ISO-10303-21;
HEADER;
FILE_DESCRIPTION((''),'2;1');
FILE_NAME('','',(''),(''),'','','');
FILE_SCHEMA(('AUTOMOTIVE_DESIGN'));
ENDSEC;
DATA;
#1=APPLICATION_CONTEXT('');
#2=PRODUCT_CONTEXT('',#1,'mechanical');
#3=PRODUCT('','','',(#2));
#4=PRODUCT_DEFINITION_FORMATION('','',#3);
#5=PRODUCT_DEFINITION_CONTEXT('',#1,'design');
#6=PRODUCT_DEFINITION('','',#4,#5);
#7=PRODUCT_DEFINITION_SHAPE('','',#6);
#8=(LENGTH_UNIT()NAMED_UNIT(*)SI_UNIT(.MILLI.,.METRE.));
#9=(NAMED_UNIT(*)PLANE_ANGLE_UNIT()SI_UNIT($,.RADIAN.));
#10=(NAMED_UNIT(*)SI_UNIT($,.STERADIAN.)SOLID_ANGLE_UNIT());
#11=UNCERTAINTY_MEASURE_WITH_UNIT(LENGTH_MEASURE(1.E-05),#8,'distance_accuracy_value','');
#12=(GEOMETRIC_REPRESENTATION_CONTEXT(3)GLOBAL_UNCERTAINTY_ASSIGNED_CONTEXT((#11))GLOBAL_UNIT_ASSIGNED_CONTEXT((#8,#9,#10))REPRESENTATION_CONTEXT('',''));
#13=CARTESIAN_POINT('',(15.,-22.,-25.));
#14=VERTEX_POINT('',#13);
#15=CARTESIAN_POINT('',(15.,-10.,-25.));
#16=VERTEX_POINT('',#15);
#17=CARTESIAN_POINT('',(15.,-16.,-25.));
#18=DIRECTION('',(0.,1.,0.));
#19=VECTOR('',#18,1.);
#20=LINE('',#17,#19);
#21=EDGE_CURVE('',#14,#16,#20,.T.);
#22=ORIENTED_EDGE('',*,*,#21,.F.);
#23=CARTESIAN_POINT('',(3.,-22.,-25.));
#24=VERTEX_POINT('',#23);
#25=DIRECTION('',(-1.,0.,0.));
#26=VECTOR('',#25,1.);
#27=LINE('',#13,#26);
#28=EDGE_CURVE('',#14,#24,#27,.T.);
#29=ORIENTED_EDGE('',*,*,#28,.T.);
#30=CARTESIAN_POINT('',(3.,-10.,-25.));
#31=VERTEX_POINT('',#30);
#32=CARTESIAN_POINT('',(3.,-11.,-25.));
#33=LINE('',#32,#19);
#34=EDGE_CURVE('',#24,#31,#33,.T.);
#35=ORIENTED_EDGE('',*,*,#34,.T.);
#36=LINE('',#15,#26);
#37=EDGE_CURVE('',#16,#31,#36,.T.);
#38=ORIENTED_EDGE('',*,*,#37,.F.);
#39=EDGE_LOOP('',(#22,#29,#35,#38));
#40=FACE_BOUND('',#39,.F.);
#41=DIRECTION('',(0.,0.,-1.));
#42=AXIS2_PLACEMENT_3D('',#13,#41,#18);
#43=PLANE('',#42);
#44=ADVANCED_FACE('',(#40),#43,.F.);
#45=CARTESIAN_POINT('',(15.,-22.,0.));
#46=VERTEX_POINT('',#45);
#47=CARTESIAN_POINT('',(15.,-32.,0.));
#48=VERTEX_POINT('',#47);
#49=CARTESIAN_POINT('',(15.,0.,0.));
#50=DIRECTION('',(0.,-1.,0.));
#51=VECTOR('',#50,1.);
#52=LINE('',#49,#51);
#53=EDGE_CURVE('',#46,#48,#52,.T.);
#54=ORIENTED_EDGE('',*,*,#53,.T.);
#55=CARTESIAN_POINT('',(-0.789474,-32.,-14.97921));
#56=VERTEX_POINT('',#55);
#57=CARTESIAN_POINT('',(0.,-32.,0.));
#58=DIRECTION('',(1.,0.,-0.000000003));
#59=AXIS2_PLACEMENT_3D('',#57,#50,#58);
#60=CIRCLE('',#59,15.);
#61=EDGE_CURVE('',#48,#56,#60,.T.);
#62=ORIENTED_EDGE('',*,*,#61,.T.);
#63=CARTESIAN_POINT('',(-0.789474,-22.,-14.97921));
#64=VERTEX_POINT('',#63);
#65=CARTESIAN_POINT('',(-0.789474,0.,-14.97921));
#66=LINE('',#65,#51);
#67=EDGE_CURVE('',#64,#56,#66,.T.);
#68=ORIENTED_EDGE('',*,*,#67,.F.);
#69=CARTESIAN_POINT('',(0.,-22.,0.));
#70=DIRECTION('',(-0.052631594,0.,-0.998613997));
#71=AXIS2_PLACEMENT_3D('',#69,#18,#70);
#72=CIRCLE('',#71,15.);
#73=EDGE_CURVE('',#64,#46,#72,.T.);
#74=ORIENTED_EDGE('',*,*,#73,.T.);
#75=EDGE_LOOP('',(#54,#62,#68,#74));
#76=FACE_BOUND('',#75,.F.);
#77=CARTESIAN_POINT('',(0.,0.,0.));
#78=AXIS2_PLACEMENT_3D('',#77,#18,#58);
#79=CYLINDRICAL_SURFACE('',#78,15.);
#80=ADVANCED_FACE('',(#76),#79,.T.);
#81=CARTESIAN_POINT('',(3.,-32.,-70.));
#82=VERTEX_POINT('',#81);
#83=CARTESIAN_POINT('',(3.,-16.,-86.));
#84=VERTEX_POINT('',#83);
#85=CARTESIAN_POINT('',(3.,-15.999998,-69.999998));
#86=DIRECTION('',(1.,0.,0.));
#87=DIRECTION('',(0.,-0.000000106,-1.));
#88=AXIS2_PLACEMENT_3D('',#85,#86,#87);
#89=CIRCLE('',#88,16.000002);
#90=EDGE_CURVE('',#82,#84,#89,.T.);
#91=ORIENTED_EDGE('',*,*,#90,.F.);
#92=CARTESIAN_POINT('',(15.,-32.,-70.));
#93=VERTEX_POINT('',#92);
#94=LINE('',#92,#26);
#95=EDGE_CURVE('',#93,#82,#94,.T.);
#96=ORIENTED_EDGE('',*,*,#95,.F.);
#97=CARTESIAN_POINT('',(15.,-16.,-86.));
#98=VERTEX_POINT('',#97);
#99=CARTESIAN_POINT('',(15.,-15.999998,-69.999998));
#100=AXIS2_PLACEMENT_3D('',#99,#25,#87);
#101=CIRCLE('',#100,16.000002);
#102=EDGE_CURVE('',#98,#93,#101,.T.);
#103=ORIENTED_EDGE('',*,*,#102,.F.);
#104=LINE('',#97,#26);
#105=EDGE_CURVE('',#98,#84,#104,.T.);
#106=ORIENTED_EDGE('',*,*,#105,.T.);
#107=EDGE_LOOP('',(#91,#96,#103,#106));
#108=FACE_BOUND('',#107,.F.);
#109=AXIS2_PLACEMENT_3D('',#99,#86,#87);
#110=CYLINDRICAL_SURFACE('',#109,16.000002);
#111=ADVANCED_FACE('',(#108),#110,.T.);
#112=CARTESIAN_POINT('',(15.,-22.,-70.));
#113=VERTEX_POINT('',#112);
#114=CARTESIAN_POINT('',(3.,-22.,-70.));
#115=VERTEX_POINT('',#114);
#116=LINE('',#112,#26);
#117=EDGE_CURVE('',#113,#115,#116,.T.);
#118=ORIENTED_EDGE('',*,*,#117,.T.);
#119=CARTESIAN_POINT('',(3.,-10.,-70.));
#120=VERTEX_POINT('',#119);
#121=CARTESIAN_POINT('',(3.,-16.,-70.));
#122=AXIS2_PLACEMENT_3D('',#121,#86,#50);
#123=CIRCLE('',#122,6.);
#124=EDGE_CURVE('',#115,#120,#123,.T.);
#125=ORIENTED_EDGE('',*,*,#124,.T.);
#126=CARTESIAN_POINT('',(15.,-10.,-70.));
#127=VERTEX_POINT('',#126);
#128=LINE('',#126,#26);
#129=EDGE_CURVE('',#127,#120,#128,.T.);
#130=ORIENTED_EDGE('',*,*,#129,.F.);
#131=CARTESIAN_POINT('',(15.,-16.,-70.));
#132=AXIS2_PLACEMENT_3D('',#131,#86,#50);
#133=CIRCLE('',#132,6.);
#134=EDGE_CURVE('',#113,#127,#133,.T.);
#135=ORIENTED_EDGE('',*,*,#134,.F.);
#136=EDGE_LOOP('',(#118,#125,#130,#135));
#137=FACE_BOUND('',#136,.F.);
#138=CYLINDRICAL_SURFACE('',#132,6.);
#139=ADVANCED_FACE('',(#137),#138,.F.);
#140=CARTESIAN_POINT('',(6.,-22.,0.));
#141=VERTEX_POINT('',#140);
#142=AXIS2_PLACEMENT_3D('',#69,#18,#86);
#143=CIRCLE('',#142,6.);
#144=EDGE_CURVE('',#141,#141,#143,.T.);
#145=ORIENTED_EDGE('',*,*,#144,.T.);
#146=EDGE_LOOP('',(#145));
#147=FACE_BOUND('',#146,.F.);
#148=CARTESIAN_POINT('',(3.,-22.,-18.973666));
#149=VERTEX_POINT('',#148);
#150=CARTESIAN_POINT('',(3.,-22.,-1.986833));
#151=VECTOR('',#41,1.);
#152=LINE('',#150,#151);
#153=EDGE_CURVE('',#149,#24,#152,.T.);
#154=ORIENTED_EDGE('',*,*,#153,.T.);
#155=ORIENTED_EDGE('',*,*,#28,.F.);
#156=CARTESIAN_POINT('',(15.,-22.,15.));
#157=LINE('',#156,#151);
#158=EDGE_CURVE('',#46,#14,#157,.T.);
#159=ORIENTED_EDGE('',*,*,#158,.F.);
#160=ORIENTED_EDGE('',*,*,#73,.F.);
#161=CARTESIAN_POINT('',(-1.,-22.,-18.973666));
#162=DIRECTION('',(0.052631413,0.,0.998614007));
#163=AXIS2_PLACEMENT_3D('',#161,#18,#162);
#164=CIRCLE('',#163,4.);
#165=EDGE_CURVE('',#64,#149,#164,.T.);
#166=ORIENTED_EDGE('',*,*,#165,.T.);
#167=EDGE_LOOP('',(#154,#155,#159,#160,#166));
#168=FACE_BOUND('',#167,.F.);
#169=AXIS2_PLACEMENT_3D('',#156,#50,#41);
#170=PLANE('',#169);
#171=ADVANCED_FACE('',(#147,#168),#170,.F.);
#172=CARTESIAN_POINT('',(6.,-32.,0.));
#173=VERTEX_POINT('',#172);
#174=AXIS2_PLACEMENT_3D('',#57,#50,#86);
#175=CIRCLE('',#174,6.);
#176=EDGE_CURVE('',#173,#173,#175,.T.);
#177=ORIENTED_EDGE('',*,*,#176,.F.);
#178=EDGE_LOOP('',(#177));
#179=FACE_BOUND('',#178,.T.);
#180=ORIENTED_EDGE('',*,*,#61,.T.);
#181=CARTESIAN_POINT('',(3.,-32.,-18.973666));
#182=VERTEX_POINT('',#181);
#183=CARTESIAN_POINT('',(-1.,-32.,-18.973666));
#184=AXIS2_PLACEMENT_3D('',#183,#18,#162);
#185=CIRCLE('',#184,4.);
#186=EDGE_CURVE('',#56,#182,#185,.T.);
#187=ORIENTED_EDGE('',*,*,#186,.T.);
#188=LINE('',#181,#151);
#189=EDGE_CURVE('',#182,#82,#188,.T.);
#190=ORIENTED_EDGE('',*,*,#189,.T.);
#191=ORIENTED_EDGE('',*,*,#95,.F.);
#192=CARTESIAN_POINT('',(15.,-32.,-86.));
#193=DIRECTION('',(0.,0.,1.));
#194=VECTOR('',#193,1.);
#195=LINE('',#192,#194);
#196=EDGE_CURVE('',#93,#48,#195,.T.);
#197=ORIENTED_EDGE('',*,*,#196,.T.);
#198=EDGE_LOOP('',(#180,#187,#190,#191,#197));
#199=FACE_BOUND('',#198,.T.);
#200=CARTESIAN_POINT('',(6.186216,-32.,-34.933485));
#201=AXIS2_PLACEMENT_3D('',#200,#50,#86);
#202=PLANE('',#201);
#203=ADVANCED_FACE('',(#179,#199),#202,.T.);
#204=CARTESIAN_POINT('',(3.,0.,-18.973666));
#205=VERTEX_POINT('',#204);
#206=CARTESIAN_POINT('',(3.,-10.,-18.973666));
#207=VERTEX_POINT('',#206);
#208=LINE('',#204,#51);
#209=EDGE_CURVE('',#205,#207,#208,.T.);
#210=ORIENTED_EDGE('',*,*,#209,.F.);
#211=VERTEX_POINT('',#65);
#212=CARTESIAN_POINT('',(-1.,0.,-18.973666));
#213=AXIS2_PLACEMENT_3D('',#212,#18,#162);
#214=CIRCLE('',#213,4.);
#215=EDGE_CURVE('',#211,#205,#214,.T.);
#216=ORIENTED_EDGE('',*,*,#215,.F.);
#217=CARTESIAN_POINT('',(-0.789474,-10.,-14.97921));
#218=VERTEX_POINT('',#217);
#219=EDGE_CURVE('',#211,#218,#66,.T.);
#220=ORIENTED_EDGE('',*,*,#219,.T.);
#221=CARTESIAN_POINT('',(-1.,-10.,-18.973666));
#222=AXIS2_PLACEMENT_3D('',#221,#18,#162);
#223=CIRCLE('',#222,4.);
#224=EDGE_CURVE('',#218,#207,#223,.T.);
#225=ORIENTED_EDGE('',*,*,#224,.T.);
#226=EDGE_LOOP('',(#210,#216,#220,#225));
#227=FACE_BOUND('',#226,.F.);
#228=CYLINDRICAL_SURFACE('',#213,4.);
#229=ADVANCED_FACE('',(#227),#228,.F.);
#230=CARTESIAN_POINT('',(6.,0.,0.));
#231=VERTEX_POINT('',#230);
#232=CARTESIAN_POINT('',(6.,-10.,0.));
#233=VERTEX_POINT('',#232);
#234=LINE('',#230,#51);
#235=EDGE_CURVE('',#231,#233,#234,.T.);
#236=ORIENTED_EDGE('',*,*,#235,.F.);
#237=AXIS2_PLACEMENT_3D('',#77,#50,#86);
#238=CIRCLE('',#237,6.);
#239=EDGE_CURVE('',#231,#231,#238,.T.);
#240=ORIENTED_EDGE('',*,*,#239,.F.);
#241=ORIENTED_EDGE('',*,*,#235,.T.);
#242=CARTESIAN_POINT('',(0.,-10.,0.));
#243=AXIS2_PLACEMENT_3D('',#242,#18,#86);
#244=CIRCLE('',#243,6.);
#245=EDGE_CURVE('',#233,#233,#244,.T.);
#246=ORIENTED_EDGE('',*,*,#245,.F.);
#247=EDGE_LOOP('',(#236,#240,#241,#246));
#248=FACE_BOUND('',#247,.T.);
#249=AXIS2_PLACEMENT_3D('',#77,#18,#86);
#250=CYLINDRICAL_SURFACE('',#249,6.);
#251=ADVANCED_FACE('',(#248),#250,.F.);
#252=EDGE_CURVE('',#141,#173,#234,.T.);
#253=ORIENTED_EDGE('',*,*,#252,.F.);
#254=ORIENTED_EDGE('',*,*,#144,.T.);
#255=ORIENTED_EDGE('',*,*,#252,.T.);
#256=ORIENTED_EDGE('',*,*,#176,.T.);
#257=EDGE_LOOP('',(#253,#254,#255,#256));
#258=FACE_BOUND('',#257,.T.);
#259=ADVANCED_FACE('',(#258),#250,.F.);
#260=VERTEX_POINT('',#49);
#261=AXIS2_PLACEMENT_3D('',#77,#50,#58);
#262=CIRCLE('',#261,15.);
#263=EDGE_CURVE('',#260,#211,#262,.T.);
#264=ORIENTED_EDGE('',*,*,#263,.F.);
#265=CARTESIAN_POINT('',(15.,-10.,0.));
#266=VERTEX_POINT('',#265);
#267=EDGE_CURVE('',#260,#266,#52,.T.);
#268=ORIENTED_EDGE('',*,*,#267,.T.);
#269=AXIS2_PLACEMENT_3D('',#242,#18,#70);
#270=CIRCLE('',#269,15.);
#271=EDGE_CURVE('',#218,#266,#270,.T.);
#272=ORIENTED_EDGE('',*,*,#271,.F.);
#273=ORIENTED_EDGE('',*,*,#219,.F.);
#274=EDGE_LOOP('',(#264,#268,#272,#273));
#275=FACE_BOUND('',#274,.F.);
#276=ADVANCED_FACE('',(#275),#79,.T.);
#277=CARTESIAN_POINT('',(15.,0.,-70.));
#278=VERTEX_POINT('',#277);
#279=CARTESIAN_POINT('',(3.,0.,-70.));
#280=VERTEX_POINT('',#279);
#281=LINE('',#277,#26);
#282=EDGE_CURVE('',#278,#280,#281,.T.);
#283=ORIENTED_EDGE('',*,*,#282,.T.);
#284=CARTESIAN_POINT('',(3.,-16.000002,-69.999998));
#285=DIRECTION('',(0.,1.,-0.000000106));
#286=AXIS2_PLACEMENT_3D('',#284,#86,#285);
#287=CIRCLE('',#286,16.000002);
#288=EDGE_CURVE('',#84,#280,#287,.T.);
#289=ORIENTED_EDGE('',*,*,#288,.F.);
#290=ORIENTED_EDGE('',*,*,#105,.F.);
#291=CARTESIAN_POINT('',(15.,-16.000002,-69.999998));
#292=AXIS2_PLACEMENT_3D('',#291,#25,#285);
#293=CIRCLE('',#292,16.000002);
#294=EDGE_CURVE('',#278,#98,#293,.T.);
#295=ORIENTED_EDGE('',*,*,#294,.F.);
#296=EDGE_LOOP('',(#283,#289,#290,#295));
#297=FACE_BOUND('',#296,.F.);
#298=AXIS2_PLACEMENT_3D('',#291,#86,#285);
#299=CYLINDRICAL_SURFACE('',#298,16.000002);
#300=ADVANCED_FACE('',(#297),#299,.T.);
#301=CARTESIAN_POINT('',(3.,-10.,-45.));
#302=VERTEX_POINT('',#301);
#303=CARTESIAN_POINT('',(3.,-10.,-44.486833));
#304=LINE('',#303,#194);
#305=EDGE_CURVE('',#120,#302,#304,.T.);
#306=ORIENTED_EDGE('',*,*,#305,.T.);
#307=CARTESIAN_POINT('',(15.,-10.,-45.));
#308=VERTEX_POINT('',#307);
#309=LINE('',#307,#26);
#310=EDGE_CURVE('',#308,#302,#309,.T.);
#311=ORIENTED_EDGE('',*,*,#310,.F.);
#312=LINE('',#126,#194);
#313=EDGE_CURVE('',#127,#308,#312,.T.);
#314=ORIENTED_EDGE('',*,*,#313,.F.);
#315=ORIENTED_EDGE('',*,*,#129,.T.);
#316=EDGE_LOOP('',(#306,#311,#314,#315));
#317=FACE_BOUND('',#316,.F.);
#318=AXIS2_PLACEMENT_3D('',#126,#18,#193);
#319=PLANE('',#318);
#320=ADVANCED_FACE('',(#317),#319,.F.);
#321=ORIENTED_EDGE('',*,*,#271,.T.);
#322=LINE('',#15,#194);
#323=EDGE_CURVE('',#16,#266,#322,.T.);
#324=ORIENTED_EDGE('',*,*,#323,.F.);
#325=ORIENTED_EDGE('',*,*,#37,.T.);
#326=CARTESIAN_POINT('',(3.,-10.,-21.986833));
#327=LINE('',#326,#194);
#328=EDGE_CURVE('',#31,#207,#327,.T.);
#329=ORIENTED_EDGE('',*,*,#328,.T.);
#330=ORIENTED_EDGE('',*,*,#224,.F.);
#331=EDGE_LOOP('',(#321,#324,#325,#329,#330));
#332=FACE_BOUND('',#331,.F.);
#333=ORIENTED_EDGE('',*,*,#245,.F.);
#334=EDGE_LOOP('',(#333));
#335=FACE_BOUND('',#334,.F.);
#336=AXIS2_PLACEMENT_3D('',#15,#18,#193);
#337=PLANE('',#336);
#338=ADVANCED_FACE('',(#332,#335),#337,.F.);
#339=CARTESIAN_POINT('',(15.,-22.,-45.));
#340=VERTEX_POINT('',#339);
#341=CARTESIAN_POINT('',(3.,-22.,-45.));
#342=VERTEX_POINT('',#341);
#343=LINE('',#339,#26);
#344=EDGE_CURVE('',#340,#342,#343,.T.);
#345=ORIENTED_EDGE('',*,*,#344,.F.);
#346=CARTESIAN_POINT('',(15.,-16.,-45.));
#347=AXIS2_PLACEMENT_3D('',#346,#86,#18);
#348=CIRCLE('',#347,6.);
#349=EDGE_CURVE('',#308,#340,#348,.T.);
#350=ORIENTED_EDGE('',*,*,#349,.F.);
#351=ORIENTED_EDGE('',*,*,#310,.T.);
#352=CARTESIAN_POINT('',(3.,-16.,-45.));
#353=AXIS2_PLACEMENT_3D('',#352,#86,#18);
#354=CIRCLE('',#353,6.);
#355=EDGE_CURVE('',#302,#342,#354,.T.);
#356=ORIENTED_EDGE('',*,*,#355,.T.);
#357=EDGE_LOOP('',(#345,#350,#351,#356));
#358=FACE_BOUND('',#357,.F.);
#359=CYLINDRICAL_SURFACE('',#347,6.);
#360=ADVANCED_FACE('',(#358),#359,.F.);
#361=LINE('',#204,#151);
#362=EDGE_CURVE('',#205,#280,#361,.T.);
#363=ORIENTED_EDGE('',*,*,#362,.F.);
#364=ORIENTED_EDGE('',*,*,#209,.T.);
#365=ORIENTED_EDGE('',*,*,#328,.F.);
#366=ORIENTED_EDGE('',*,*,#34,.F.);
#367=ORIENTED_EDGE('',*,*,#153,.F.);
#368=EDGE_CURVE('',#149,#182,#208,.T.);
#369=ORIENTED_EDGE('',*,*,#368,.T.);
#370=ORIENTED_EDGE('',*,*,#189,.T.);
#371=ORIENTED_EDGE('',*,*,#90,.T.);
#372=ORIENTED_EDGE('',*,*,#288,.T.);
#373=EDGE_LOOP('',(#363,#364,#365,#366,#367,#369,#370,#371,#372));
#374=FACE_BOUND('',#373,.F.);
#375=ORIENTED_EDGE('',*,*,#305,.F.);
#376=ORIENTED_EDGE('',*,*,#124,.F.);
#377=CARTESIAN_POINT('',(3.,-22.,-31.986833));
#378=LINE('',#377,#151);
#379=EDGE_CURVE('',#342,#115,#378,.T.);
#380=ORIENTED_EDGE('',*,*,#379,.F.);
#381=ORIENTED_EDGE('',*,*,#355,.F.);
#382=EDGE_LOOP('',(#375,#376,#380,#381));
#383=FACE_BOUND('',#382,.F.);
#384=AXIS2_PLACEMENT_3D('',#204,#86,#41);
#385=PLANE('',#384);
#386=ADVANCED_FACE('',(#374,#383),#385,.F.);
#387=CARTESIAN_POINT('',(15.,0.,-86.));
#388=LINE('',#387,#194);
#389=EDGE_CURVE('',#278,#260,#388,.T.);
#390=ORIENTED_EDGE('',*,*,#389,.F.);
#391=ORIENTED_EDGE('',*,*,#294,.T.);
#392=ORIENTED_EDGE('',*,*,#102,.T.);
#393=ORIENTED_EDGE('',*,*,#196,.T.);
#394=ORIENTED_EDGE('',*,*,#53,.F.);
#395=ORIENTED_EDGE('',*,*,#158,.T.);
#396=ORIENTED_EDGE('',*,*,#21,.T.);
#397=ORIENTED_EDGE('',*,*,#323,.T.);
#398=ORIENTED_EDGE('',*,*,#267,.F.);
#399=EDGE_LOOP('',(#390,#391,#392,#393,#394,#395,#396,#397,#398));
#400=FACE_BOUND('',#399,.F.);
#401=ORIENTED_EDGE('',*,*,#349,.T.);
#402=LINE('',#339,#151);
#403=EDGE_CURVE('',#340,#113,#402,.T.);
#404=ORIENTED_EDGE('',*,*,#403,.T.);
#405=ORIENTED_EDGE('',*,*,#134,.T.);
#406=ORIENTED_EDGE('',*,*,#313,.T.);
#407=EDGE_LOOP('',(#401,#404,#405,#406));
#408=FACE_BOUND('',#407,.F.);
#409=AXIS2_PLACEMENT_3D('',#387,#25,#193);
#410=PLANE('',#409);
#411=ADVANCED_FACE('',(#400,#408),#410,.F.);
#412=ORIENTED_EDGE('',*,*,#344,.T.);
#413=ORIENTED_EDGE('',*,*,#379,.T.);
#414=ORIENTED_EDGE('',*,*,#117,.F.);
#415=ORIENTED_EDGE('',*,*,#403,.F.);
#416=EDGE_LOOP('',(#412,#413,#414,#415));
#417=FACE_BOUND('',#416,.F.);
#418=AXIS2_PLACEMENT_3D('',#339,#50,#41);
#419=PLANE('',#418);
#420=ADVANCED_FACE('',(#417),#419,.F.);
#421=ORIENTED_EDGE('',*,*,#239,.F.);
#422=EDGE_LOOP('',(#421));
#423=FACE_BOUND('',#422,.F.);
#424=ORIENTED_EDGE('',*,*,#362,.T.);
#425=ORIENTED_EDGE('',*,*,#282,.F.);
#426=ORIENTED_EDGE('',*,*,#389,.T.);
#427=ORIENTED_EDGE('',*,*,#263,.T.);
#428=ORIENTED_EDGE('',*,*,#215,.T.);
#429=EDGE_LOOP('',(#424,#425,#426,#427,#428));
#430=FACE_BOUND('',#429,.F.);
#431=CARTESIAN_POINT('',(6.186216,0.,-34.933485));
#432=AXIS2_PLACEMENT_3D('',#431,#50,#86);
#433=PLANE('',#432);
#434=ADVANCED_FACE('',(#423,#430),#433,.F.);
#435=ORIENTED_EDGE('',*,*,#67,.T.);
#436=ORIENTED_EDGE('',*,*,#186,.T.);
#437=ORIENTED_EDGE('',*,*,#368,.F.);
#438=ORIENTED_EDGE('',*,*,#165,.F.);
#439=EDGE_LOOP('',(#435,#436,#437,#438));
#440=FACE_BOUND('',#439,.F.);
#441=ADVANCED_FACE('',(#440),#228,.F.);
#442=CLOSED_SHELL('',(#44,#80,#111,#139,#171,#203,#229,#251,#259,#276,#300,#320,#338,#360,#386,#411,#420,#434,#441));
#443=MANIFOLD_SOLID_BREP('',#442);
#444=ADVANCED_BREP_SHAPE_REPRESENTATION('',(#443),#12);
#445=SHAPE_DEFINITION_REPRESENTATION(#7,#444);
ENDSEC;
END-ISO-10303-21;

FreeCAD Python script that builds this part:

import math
import FreeCAD as App
import Part
import Sketcher

V = App.Vector


def add_polygon(sketch, points):
    """Adds a closed chain of lines whose ends are joined by coincident constraints."""
    first, n = sketch.GeometryCount, len(points)
    for a, b in zip(points, points[1:] + points[:1]):
        sketch.addGeometry(Part.LineSegment(App.Vector(*a, 0), App.Vector(*b, 0)), False)
    for i in range(n):
        sketch.addConstraint(Sketcher.Constraint("Coincident", first + i, 2, first + (i + 1) % n, 1))

doc = App.newDocument("Part")
body = doc.addObject("PartDesign::Body", "Body")

sketch1 = body.newObject("Sketcher::SketchObject", "Sketch")
sketch1.AttachmentSupport = (doc.getObject("XZ_Plane"), [""])
sketch1.MapMode = "FlatFace"
sketch1.addGeometry([
    Part.LineSegment(V(15, -86, 0), V(15, 0, 0)),
    Part.ArcOfCircle(Part.Circle(V(0, 0, 0), V(0, 0, 1), 15), math.radians(0), math.radians(267)),
    Part.ArcOfCircle(Part.Circle(V(-1, -19, 0), V(0, 0, 1), 4), math.radians(0), math.radians(87)),
    Part.LineSegment(V(3, -19, 0), V(3, -86, 0)),
    Part.LineSegment(V(3, -86, 0), V(15, -86, 0)),
    Part.Circle(V(0, 0, 0), V(0, 0, 1), 6),
], False)
sketch1.addConstraint([
    Sketcher.Constraint("Tangent", 0, 2, 1, 1),
    Sketcher.Constraint("Tangent", 1, 2, 2, 2),
    Sketcher.Constraint("Tangent", 2, 1, 3, 1),
    Sketcher.Constraint("Coincident", 3, 2, 4, 1),
    Sketcher.Constraint("Coincident", 4, 2, 0, 1),
    Sketcher.Constraint("Vertical", 0),
    Sketcher.Constraint("Vertical", 3),
    Sketcher.Constraint("Horizontal", 4),
    Sketcher.Constraint("Coincident", 1, 3, -1, 1),
    Sketcher.Constraint("Coincident", 5, 3, -1, 1),
    Sketcher.Constraint("Diameter", 5, 12.0),
    Sketcher.Constraint("Radius", 1, 15.0),
    Sketcher.Constraint("Radius", 2, 4.0),
    Sketcher.Constraint("DistanceX", 4, 1, 4, 2, 12.0),
    Sketcher.Constraint("DistanceY", 0, 1, 0, 2, 86.0),
])
pad1 = body.newObject("PartDesign::Pad", "Pad")
pad1.Profile = sketch1
pad1.Length = 32

sketch2 = body.newObject("Sketcher::SketchObject", "Sketch001")
sketch2.AttachmentSupport = (doc.getObject("YZ_Plane"), [""])
sketch2.MapMode = "FlatFace"
sketch2.AttachmentOffset = App.Placement(V(0, 0, 15), App.Rotation())
sketch2.addGeometry(Part.LineSegment(V(-22, -45, 0), V(-22, -70, 0)), False)
sketch2.addGeometry(Part.ArcOfCircle(Part.Circle(V(-16, -70, 0), V(0, 0, 1), 6), math.radians(180), math.radians(360)), False)
sketch2.addGeometry(Part.LineSegment(V(-10, -70, 0), V(-10, -45, 0)), False)
sketch2.addGeometry(Part.ArcOfCircle(Part.Circle(V(-16, -45, 0), V(0, 0, 1), 6), math.radians(0), math.radians(180)), False)
add_polygon(sketch2, [(-22, -25), (-10, -25), (-10, 15), (-22, 15)])
sketch2.addGeometry(Part.ArcOfCircle(Part.Circle(V(-16, -70, 0), V(0, 0, 1), 16), math.radians(-180), math.radians(-90)), False)
sketch2.addGeometry(Part.LineSegment(V(-32, -70, 0), V(-32, -86, 0)), False)
sketch2.addGeometry(Part.LineSegment(V(-32, -86, 0), V(-16, -86, 0)), False)
sketch2.addGeometry(Part.LineSegment(V(0, -86, 0), V(0, -70, 0)), False)
sketch2.addGeometry(Part.ArcOfCircle(Part.Circle(V(-16, -70, 0), V(0, 0, 1), 16), math.radians(-90), math.radians(0)), False)
sketch2.addGeometry(Part.LineSegment(V(-16, -86, 0), V(0, -86, 0)), False)
sketch2.addConstraint([
    Sketcher.Constraint("Tangent", 0, 2, 1, 1),
    Sketcher.Constraint("Tangent", 1, 2, 2, 1),
    Sketcher.Constraint("Tangent", 2, 2, 3, 1),
    Sketcher.Constraint("Tangent", 3, 2, 0, 1),
    Sketcher.Constraint("Tangent", 8, 1, 9, 1),
    Sketcher.Constraint("Coincident", 9, 2, 10, 1),
    Sketcher.Constraint("Tangent", 10, 2, 8, 2),
    Sketcher.Constraint("Tangent", 11, 2, 12, 2),
    Sketcher.Constraint("Tangent", 12, 1, 13, 1),
    Sketcher.Constraint("Coincident", 13, 2, 11, 1),
    Sketcher.Constraint("Vertical", 0),
    Sketcher.Constraint("Vertical", 2),
    Sketcher.Constraint("Horizontal", 4),
    Sketcher.Constraint("Vertical", 5),
    Sketcher.Constraint("Horizontal", 6),
    Sketcher.Constraint("Vertical", 7),
    Sketcher.Constraint("Vertical", 9),
    Sketcher.Constraint("Horizontal", 10),
    Sketcher.Constraint("Vertical", 11),
    Sketcher.Constraint("Horizontal", 13),
    Sketcher.Constraint("Coincident", 8, 3, 1, 3),
    Sketcher.Constraint("Coincident", 12, 3, 1, 3),
    Sketcher.Constraint("Equal", 8, 12),
    Sketcher.Constraint("PointOnObject", 11, 2, -2),
    Sketcher.Constraint("Vertical", 2, 2, 4, 2),
    Sketcher.Constraint("Vertical", 3, 2, 6, 2),
    Sketcher.Constraint("Radius", 1, 6.0),
    Sketcher.Constraint("Radius", 8, 16.000002),
    Sketcher.Constraint("DistanceY", 0, 2, 0, 1, 25.0),
    Sketcher.Constraint("DistanceY", 5, 1, 5, 2, 40.0),
    Sketcher.Constraint("DistanceY", 1, 3, -1, 1, 70.0),
    Sketcher.Constraint("DistanceY", 4, 2, -1, 1, 25.0),
])
pocket1 = body.newObject("PartDesign::Pocket", "Pocket")
pocket1.Profile = sketch2
pocket1.Type = "ThroughAll"

doc.recompute()
